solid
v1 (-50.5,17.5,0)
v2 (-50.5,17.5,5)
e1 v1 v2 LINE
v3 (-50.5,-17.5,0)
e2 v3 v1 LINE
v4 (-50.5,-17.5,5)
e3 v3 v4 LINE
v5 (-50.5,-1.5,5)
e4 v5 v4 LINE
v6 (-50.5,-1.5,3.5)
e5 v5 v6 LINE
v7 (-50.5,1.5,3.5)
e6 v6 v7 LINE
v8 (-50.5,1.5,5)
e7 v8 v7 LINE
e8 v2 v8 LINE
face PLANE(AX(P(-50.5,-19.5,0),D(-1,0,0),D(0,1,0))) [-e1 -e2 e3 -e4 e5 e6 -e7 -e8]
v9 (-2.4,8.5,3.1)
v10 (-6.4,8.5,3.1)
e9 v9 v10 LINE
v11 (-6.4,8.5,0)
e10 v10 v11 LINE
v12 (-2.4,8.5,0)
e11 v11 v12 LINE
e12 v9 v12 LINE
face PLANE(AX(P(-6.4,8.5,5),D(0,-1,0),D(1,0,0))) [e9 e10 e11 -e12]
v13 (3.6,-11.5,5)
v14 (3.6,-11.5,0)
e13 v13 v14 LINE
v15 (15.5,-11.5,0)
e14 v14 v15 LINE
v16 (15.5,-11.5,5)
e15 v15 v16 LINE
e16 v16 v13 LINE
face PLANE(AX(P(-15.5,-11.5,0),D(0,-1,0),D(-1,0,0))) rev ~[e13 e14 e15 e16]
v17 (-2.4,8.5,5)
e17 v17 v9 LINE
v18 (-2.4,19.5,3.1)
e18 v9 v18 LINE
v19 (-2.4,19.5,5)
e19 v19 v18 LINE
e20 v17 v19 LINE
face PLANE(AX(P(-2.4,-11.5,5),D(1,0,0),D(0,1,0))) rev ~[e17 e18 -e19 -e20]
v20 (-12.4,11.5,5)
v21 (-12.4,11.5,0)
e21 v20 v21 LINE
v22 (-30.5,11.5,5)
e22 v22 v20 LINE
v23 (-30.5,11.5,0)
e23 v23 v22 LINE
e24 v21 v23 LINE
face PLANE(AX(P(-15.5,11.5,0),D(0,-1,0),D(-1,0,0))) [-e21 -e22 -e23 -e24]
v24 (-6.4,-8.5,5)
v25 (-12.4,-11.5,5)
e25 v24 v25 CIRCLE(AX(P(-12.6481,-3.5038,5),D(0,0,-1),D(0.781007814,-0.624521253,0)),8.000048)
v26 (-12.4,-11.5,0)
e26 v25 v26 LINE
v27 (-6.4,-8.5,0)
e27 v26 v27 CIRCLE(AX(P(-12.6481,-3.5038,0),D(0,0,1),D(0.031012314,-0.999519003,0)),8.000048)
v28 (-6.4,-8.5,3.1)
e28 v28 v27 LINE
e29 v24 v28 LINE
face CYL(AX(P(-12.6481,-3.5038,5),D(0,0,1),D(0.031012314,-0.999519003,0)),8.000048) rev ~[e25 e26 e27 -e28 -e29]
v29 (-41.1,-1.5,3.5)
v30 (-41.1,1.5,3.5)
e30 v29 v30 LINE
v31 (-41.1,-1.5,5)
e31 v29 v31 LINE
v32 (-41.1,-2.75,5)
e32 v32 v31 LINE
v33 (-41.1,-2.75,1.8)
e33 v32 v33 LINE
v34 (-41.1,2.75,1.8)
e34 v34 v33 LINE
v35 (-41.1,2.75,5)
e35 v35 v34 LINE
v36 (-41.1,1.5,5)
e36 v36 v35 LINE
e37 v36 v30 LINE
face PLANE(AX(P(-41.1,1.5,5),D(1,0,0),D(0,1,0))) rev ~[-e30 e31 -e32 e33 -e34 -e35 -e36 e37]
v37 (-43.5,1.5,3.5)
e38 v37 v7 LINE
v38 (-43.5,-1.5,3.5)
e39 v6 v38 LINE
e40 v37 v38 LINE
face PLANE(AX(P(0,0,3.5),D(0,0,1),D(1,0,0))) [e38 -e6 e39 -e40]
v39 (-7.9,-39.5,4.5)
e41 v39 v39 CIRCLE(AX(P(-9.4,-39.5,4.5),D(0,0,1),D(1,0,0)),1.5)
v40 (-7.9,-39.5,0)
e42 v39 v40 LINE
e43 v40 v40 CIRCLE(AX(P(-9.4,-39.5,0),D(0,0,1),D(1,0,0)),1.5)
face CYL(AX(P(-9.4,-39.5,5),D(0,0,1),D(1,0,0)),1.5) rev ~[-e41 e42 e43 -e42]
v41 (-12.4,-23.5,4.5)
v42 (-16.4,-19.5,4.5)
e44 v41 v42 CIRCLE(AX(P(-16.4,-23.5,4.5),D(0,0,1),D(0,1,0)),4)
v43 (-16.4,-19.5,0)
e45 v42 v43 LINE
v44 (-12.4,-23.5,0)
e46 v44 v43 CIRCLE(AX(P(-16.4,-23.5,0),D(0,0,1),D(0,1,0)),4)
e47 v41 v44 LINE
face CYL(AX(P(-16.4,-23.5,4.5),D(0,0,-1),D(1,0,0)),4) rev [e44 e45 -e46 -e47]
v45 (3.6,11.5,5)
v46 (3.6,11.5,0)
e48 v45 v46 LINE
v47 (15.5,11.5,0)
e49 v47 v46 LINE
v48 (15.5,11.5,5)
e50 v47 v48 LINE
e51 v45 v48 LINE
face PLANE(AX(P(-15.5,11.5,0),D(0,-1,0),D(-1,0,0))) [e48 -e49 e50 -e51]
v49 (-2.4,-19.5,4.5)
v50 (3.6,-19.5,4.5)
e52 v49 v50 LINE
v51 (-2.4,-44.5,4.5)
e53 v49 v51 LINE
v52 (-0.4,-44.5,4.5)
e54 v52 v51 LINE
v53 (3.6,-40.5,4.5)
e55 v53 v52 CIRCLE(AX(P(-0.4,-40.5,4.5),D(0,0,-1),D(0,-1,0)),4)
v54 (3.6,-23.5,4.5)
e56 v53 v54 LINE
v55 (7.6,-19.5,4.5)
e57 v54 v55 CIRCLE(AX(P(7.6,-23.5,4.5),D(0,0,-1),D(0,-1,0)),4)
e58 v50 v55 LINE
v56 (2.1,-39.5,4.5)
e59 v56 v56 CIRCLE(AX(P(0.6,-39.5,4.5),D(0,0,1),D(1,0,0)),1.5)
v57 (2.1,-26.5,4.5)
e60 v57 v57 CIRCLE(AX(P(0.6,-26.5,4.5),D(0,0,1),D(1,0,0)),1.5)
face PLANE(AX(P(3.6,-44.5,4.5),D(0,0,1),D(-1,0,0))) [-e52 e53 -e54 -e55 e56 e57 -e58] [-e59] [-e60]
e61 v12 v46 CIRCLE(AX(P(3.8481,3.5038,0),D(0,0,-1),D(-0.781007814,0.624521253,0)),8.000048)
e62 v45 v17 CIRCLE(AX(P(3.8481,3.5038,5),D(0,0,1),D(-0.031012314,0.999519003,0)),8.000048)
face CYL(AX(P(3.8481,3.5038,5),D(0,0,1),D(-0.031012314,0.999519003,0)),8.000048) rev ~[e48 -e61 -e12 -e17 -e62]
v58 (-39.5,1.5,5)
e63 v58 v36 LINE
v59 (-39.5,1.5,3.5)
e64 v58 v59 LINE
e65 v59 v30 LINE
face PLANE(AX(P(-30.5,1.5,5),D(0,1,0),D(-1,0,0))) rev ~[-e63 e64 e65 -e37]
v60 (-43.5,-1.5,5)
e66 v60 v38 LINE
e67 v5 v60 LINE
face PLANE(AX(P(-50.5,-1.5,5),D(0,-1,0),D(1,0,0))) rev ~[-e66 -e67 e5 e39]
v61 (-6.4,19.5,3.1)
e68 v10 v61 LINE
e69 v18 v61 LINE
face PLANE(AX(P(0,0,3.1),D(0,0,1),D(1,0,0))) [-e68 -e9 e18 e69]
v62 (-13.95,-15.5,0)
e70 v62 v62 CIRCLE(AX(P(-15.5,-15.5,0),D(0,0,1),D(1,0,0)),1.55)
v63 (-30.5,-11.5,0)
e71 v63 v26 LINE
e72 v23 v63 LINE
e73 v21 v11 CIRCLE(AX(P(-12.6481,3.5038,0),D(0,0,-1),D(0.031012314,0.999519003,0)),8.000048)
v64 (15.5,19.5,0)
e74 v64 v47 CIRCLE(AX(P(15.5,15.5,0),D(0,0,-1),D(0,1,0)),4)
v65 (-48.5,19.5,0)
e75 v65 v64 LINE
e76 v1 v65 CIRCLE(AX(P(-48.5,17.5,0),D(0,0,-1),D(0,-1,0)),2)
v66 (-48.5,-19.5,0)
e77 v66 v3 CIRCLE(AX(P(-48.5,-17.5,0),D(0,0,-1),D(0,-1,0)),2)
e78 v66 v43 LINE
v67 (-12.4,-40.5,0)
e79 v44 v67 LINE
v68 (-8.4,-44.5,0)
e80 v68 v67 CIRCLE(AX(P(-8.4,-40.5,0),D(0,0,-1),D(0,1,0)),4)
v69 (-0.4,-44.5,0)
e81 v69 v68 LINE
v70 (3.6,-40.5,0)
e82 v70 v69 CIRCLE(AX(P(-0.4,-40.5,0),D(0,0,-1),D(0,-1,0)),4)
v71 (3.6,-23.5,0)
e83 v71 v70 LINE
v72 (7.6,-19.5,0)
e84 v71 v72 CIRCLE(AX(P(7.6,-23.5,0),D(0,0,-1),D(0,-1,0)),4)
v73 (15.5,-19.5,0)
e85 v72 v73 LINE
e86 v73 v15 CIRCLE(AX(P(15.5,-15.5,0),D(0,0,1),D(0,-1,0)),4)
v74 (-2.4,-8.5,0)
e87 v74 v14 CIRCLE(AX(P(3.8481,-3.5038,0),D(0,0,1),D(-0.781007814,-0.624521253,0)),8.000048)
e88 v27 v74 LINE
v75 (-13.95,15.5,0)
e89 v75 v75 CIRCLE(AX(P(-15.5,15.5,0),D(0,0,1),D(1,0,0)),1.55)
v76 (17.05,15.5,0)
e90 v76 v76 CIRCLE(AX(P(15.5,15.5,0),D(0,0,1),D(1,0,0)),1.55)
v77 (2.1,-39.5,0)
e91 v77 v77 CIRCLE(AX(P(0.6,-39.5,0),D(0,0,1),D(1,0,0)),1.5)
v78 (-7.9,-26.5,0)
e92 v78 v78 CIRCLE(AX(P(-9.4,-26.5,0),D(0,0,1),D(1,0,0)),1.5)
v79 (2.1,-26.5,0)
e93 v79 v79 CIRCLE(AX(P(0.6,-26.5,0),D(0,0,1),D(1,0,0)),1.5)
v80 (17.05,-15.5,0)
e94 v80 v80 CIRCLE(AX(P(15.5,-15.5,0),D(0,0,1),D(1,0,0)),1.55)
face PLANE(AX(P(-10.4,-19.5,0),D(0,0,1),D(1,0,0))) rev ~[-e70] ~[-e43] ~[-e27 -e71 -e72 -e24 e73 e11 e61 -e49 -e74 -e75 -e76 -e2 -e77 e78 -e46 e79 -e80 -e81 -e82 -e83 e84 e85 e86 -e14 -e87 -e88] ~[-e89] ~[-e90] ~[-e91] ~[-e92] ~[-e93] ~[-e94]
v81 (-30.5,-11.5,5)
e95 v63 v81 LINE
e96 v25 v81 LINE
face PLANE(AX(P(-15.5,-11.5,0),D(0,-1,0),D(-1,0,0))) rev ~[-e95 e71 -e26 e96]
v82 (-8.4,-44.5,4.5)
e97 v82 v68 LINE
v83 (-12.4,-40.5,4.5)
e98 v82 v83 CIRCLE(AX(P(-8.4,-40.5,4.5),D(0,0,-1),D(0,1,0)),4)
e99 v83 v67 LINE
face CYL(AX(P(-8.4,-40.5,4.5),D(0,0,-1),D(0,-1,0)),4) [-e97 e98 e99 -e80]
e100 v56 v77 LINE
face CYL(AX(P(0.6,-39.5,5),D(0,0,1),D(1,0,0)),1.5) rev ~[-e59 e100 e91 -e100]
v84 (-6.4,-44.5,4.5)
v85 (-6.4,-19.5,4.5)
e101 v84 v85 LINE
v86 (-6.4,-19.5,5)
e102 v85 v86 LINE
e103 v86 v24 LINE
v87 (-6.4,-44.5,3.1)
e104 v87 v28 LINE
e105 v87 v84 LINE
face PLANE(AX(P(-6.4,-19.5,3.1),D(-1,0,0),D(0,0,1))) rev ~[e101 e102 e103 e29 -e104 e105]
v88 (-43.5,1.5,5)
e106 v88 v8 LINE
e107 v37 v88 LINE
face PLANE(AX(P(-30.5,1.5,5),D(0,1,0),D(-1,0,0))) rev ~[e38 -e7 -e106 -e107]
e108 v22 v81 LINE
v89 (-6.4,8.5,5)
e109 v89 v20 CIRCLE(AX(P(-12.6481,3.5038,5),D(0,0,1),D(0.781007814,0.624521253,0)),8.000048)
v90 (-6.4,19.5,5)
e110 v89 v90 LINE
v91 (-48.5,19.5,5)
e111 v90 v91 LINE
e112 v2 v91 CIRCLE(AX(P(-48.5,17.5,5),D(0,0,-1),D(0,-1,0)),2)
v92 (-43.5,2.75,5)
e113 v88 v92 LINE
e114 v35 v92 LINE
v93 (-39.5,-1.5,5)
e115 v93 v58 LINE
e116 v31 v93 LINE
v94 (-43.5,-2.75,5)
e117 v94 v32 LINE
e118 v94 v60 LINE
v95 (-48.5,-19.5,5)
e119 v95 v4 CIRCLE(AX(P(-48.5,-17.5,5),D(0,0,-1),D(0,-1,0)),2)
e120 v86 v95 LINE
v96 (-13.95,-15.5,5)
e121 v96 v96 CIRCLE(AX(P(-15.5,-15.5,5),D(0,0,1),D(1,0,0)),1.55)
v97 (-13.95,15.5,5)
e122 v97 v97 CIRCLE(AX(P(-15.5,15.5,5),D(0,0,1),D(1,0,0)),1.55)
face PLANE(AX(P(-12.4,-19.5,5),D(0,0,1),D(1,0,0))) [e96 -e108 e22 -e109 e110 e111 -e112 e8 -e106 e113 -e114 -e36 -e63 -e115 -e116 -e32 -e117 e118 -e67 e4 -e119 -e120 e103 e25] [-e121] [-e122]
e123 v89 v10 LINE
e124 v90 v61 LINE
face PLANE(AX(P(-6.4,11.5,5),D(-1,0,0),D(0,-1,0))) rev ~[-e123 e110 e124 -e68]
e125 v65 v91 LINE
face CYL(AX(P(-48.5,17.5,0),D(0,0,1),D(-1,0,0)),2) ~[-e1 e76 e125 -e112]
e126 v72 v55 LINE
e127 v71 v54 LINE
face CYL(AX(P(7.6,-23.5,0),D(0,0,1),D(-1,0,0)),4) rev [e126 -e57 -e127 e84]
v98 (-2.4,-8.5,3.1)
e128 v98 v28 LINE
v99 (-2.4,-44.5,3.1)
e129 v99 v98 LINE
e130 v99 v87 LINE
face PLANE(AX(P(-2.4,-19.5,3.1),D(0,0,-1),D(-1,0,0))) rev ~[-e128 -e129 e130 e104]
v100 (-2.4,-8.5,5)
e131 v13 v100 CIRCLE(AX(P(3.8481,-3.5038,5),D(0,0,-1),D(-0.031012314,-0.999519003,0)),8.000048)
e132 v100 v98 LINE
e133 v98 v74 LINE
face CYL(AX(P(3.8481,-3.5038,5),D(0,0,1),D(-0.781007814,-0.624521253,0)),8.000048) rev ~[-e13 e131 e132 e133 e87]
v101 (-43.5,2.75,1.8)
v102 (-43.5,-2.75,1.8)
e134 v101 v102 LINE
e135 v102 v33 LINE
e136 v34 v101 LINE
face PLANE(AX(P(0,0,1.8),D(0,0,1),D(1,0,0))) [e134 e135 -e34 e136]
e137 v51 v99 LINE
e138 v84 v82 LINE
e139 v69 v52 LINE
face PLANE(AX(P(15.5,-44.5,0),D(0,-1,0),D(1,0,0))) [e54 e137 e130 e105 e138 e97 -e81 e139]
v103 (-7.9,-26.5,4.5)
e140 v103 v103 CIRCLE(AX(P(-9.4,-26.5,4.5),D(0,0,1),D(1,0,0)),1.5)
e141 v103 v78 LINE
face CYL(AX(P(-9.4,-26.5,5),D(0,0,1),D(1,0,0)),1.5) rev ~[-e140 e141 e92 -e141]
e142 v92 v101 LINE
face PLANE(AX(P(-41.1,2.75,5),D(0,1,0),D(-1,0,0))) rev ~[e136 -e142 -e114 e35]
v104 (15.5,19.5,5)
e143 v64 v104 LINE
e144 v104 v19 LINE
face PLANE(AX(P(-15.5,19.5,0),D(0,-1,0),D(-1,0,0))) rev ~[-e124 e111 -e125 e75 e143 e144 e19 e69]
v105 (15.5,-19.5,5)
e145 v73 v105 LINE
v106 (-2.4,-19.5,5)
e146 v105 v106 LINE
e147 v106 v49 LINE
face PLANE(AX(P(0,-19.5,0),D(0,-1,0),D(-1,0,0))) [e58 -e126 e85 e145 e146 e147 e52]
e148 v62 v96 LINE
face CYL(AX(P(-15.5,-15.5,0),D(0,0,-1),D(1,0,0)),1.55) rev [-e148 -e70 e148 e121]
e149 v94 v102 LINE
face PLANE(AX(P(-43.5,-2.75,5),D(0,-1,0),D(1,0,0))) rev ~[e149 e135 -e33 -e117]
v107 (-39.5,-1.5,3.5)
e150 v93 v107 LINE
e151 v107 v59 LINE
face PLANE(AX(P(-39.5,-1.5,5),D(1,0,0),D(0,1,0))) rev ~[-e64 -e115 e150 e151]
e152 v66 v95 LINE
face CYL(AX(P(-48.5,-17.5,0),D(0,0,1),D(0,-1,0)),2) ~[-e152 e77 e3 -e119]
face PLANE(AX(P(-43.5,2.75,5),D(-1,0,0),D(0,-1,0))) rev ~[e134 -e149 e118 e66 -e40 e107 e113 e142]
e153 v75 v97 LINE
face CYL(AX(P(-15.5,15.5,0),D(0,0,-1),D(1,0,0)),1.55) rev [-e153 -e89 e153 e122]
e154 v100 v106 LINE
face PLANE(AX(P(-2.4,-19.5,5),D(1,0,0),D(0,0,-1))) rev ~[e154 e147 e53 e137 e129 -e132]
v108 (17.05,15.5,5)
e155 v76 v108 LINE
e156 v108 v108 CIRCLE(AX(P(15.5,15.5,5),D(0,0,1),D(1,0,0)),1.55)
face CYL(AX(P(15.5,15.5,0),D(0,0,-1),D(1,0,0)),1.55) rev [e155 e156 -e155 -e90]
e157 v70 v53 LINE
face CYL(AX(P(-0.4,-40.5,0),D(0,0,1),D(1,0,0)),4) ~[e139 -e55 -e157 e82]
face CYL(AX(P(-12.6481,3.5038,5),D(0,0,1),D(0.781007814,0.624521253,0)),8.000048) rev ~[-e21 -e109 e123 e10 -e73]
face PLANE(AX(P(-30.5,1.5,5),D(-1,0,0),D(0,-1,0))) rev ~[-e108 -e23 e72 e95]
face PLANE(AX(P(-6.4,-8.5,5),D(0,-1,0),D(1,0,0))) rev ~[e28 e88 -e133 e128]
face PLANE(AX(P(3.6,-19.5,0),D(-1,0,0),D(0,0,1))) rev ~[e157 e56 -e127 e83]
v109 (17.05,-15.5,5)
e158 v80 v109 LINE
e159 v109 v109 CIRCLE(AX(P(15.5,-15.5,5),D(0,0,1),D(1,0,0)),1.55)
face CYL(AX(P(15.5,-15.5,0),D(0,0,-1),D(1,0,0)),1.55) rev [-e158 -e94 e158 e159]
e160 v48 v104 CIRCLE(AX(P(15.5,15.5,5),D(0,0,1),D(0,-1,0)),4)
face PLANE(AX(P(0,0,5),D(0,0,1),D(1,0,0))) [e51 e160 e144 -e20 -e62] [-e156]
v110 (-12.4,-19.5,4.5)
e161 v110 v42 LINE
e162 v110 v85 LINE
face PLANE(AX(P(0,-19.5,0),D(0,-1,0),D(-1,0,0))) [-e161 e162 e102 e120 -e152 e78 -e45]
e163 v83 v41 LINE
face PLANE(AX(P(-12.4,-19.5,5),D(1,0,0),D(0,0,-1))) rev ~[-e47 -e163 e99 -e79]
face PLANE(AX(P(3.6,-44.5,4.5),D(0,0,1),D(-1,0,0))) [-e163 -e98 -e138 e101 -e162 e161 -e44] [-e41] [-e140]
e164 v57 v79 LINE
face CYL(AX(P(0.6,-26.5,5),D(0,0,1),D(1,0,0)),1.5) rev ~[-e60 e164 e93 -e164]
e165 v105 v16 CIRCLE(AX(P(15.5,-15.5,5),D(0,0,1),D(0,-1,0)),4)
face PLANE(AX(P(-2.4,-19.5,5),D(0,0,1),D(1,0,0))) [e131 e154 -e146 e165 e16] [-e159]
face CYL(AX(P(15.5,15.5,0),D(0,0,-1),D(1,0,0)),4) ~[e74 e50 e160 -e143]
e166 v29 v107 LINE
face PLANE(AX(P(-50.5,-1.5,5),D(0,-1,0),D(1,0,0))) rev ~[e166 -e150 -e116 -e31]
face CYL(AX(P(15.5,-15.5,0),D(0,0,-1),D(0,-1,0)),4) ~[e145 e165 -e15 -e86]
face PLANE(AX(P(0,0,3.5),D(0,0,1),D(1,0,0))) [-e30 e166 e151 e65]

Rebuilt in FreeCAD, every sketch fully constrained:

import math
import FreeCAD as App
import Part
import Sketcher

V = App.Vector
Q = App.Units.Quantity


def edges_at(feature, points):
    """Names of the edges that pass closest to the given points."""
    edges = feature.Shape.Edges
    near = lambda p: min(range(len(edges)), key=lambda i: edges[i].distToShape(Part.Vertex(*p))[0])
    return sorted({f"Edge{near(p) + 1}" for p in points})


def add_polygon(sketch, points):
    """Adds a closed chain of lines whose ends are joined by coincident constraints."""
    first, n = sketch.GeometryCount, len(points)
    for a, b in zip(points, points[1:] + points[:1]):
        sketch.addGeometry(Part.LineSegment(App.Vector(*a, 0), App.Vector(*b, 0)), False)
    for i in range(n):
        sketch.addConstraint(Sketcher.Constraint("Coincident", first + i, 2, first + (i + 1) % n, 1))

doc = App.newDocument("Part")
params = doc.addObject("Spreadsheet::Sheet", "Params")
for row, (alias, value) in enumerate([
    ("sketch1_radius", "4 mm"),
    ("sketch1_diameter", "3.1 mm"),
    ("pad1_length", "5 mm"),
    ("sketch2_height", "3 mm"),
    ("sketch2_width", "20 mm"),
    ("pocket1_length", "1.5 mm"),
    ("sketch3_width", "2.4 mm"),
    ("sketch3_height", "5.5 mm"),
    ("pocket2_length", "3.2 mm"),
    ("sketch4_width", "4 mm"),
    ("sketch4_height", "39 mm"),
    ("pocket3_length", "1.9 mm"),
    ("fillet_radius", "2 mm"),
    ("fillet2_radius", "2 mm"),
    ("sketch5_radius", "8 mm"),
    ("sketch5_width", "4 mm"),
    ("pad2_length", "5 mm"),
    ("sketch6_width", "4 mm"),
    ("sketch6_height", "23 mm"),
    ("pocket4_length", "1.9 mm"),
    ("sketch7_width", "9 mm"),
    ("sketch7_height", "3 mm"),
    ("pad3_length", "1.5 mm"),
    ("sketch8_width", "6 mm"),
    ("sketch8_width2", "16 mm"),
    ("sketch8_height", "5 mm"),
    ("sketch8_height2", "1.9 mm"),
    ("pad4_length", "25 mm"),
    ("sketch9_diameter", "3 mm"),
    ("pocket5_length", "5 mm"),
    ("sketch10_height", "0.5 mm"),
    ("sketch10_width", "16 mm"),
    ("pocket6_length", "25 mm"),
    ("fillet3_radius", "4 mm"),
    ("fillet4_radius", "4 mm"),
], start=1):
    params.set(f"A{row}", alias)
    params.set(f"B{row}", "=" + value)
    params.setAlias(f"B{row}", alias)

body = doc.addObject("PartDesign::Body", "Body")

sketch1 = body.newObject("Sketcher::SketchObject", "Sketch")
sketch1.AttachmentSupport = (doc.getObject("XY_Plane"), [""])
sketch1.MapMode = "FlatFace"
sketch1.addGeometry(Part.ArcOfCircle(Part.Circle(V(15.5, -15.5, 0), V(0, 0, 1), 4), math.radians(-90), math.radians(90)), False)
sketch1.addGeometry(Part.LineSegment(V(15.5, -11.5, 0), V(-30.5, -11.5, 0)), False)
sketch1.addGeometry(Part.LineSegment(V(-30.5, -11.5, 0), V(-30.5, 11.5, 0)), False)
sketch1.addGeometry(Part.LineSegment(V(-30.5, 11.5, 0), V(15.5, 11.5, 0)), False)
sketch1.addGeometry(Part.ArcOfCircle(Part.Circle(V(15.5, 15.5, 0), V(0, 0, 1), 4), math.radians(-90), math.radians(90)), False)
sketch1.addGeometry(Part.LineSegment(V(15.5, 19.5, 0), V(-50.5, 19.5, 0)), False)
sketch1.addGeometry(Part.LineSegment(V(-50.5, 19.5, 0), V(-50.5, -19.5, 0)), False)
sketch1.addGeometry(Part.LineSegment(V(-50.5, -19.5, 0), V(15.5, -19.5, 0)), False)
sketch1.addGeometry(Part.Circle(V(-15.5, -15.5, 0), V(0, 0, 1), 1.6), False)
sketch1.addGeometry(Part.Circle(V(15.5, -15.5, 0), V(0, 0, 1), 1.6), False)
sketch1.addGeometry(Part.Circle(V(-15.5, 15.5, 0), V(0, 0, 1), 1.6), False)
sketch1.addGeometry(Part.Circle(V(15.5, 15.5, 0), V(0, 0, 1), 1.6), False)
sketch1.addConstraint(Sketcher.Constraint("Tangent", 0, 2, 1, 1))
sketch1.addConstraint(Sketcher.Constraint("Coincident", 1, 2, 2, 1))
sketch1.addConstraint(Sketcher.Constraint("Coincident", 2, 2, 3, 1))
sketch1.addConstraint(Sketcher.Constraint("Tangent", 3, 2, 4, 1))
sketch1.addConstraint(Sketcher.Constraint("Tangent", 4, 2, 5, 1))
sketch1.addConstraint(Sketcher.Constraint("Coincident", 5, 2, 6, 1))
sketch1.addConstraint(Sketcher.Constraint("Coincident", 6, 2, 7, 1))
sketch1.addConstraint(Sketcher.Constraint("Tangent", 7, 2, 0, 1))
sketch1.addConstraint(Sketcher.Constraint("Horizontal", 1))
sketch1.addConstraint(Sketcher.Constraint("Vertical", 2))
sketch1.addConstraint(Sketcher.Constraint("Horizontal", 3))
sketch1.addConstraint(Sketcher.Constraint("Horizontal", 5))
sketch1.addConstraint(Sketcher.Constraint("Vertical", 6))
sketch1.addConstraint(Sketcher.Constraint("Horizontal", 7))
sketch1.addConstraint(Sketcher.Constraint("Coincident", 9, 3, 0, 3))
sketch1.addConstraint(Sketcher.Constraint("Coincident", 11, 3, 4, 3))
sketch1.addConstraint(Sketcher.Constraint("Equal", 0, 4))
sketch1.addConstraint(Sketcher.Constraint("Equal", 8, 9))
sketch1.addConstraint(Sketcher.Constraint("Equal", 9, 10))
sketch1.addConstraint(Sketcher.Constraint("Equal", 10, 11))
sketch1.addConstraint(Sketcher.Constraint("Symmetric", 4, 3, 8, 3, -1, 1))
sketch1.addConstraint(Sketcher.Constraint("Symmetric", 0, 3, 10, 3, -1, 1))
sketch1.addConstraint(Sketcher.Constraint("Symmetric", 0, 3, 8, 3, -2))
sketch1.addConstraint(Sketcher.Constraint("Radius", 0, Q("4 mm")))
sketch1.addConstraint(Sketcher.Constraint("Diameter", 8, Q("3.1 mm")))
sketch1.addConstraint(Sketcher.Constraint("DistanceX", 1, 2, 8, 3, Q("15 mm")))
sketch1.addConstraint(Sketcher.Constraint("DistanceX", 5, 2, 10, 3, Q("35 mm")))
sketch1.addConstraint(Sketcher.Constraint("DistanceY", 8, 3, 5, 2, Q("35 mm")))
sketch1.addConstraint(Sketcher.Constraint("DistanceX", -1, 1, 0, 3, Q("15.5 mm")))
sketch1.setExpression("Constraints[23]", "Params.sketch1_radius")
sketch1.setExpression("Constraints[24]", "Params.sketch1_diameter")
pad1 = body.newObject("PartDesign::Pad", "Pad")
pad1.Profile = sketch1
pad1.setExpression("Length", "Params.pad1_length")

sketch2 = body.newObject("Sketcher::SketchObject", "Sketch001")
sketch2.AttachmentSupport = (doc.getObject("XY_Plane"), [""])
sketch2.MapMode = "FlatFace"
sketch2.AttachmentOffset = App.Placement(V(0, 0, 5), App.Rotation())
add_polygon(sketch2, [(-30.5, 1.5), (-50.5, 1.5), (-50.5, -1.5), (-30.5, -1.5)])
sketch2.addConstraint(Sketcher.Constraint("Horizontal", 0))
sketch2.addConstraint(Sketcher.Constraint("Vertical", 1))
sketch2.addConstraint(Sketcher.Constraint("Horizontal", 2))
sketch2.addConstraint(Sketcher.Constraint("Vertical", 3))
sketch2.addConstraint(Sketcher.Constraint("DistanceY", 1, 2, 1, 1, Q("3 mm")))
sketch2.addConstraint(Sketcher.Constraint("DistanceX", 0, 2, 0, 1, Q("20 mm")))
sketch2.addConstraint(Sketcher.Constraint("DistanceX", 0, 2, -1, 1, Q("50.5 mm")))
sketch2.addConstraint(Sketcher.Constraint("DistanceY", -1, 1, 0, 2, Q("1.5 mm")))
sketch2.setExpression("Constraints[8]", "Params.sketch2_height")
sketch2.setExpression("Constraints[9]", "Params.sketch2_width")
pocket1 = body.newObject("PartDesign::Pocket", "Pocket")
pocket1.Profile = sketch2
pocket1.setExpression("Length", "Params.pocket1_length")

sketch3 = body.newObject("Sketcher::SketchObject", "Sketch002")
sketch3.AttachmentSupport = (doc.getObject("XY_Plane"), [""])
sketch3.MapMode = "FlatFace"
sketch3.AttachmentOffset = App.Placement(V(0, 0, 5), App.Rotation())
add_polygon(sketch3, [(-43.5, 2.8), (-43.5, -2.8), (-41.1, -2.8), (-41.1, 2.8)])
sketch3.addConstraint(Sketcher.Constraint("Vertical", 0))
sketch3.addConstraint(Sketcher.Constraint("Horizontal", 1))
sketch3.addConstraint(Sketcher.Constraint("Vertical", 2))
sketch3.addConstraint(Sketcher.Constraint("Horizontal", 3))
sketch3.addConstraint(Sketcher.Constraint("DistanceX", 1, 1, 1, 2, Q("2.4 mm")))
sketch3.addConstraint(Sketcher.Constraint("DistanceY", 0, 2, 0, 1, Q("5.5 mm")))
sketch3.addConstraint(Sketcher.Constraint("DistanceX", 0, 2, -1, 1, Q("43.5 mm")))
sketch3.addConstraint(Sketcher.Constraint("DistanceY", 0, 2, -1, 1, Q("2.75 mm")))
sketch3.setExpression("Constraints[8]", "Params.sketch3_width")
sketch3.setExpression("Constraints[9]", "Params.sketch3_height")
pocket2 = body.newObject("PartDesign::Pocket", "Pocket001")
pocket2.Profile = sketch3
pocket2.setExpression("Length", "Params.pocket2_length")

sketch4 = body.newObject("Sketcher::SketchObject", "Sketch003")
sketch4.AttachmentSupport = (doc.getObject("XY_Plane"), [""])
sketch4.MapMode = "FlatFace"
sketch4.AttachmentOffset = App.Placement(V(0, 0, 5), App.Rotation())
add_polygon(sketch4, [(-2.4, 19.5), (-6.4, 19.5), (-6.4, -19.5), (-2.4, -19.5)])
sketch4.addConstraint(Sketcher.Constraint("Horizontal", 0))
sketch4.addConstraint(Sketcher.Constraint("Vertical", 1))
sketch4.addConstraint(Sketcher.Constraint("Horizontal", 2))
sketch4.addConstraint(Sketcher.Constraint("Vertical", 3))
sketch4.addConstraint(Sketcher.Constraint("DistanceX", 0, 2, 0, 1, Q("4 mm")))
sketch4.addConstraint(Sketcher.Constraint("DistanceX", 2, 2, -1, 1, Q("2.4 mm")))
sketch4.addConstraint(Sketcher.Constraint("DistanceY", 1, 2, 1, 1, Q("39 mm")))
sketch4.addConstraint(Sketcher.Constraint("DistanceY", -1, 1, 0, 2, Q("19.5 mm")))
sketch4.setExpression("Constraints[8]", "Params.sketch4_width")
sketch4.setExpression("Constraints[10]", "Params.sketch4_height")
pocket3 = body.newObject("PartDesign::Pocket", "Pocket002")
pocket3.Profile = sketch4
pocket3.setExpression("Length", "Params.pocket3_length")
doc.recompute()

fillet = body.newObject("PartDesign::Fillet", "Fillet")
fillet.Base = (pocket3, edges_at(pocket3, [(-50.5, -19.5, 2.5)]))
fillet.setExpression("Radius", "Params.fillet_radius")
doc.recompute()

fillet2 = body.newObject("PartDesign::Fillet", "Fillet001")
fillet2.Base = (fillet, edges_at(fillet, [(-50.5, 19.5, 2.5)]))
fillet2.setExpression("Radius", "Params.fillet2_radius")

sketch5 = body.newObject("Sketcher::SketchObject", "Sketch004")
sketch5.AttachmentSupport = (doc.getObject("XY_Plane"), [""])
sketch5.MapMode = "FlatFace"
sketch5.AttachmentOffset = App.Placement(V(0, 0, 5), App.Rotation())
sketch5.addGeometry(Part.LineSegment(V(-6.4, 8.5, 0), V(-2.4, 8.5, 0)), False)
sketch5.addGeometry(Part.ArcOfCircle(Part.Circle(V(3.8, 3.5, 0), V(0, 0, 1), 8), math.radians(92), math.radians(141)), False)
sketch5.addGeometry(Part.LineSegment(V(3.6, 11.5, 0), V(-12.4, 11.5, 0)), False)
sketch5.addGeometry(Part.ArcOfCircle(Part.Circle(V(-12.6, 3.5, 0), V(0, 0, 1), 8), math.radians(39), math.radians(88)), False)
sketch5.addGeometry(Part.ArcOfCircle(Part.Circle(V(3.8, -3.5, 0), V(0, 0, 1), 8), math.radians(-141), math.radians(-92)), False)
sketch5.addGeometry(Part.LineSegment(V(-2.4, -8.5, 0), V(-6.4, -8.5, 0)), False)
sketch5.addGeometry(Part.ArcOfCircle(Part.Circle(V(-12.6, -3.5, 0), V(0, 0, 1), 8), math.radians(-88), math.radians(-39)), False)
sketch5.addGeometry(Part.LineSegment(V(-12.4, -11.5, 0), V(3.6, -11.5, 0)), False)
sketch5.addConstraint(Sketcher.Constraint("Coincident", 0, 2, 1, 2))
sketch5.addConstraint(Sketcher.Constraint("Coincident", 1, 1, 2, 1))
sketch5.addConstraint(Sketcher.Constraint("Coincident", 2, 2, 3, 2))
sketch5.addConstraint(Sketcher.Constraint("Coincident", 3, 1, 0, 1))
sketch5.addConstraint(Sketcher.Constraint("Coincident", 4, 1, 5, 1))
sketch5.addConstraint(Sketcher.Constraint("Coincident", 5, 2, 6, 2))
sketch5.addConstraint(Sketcher.Constraint("Coincident", 6, 1, 7, 1))
sketch5.addConstraint(Sketcher.Constraint("Coincident", 7, 2, 4, 2))
sketch5.addConstraint(Sketcher.Constraint("Horizontal", 0))
sketch5.addConstraint(Sketcher.Constraint("Horizontal", 2))
sketch5.addConstraint(Sketcher.Constraint("Horizontal", 5))
sketch5.addConstraint(Sketcher.Constraint("Horizontal", 7))
sketch5.addConstraint(Sketcher.Constraint("Equal", 1, 3))
sketch5.addConstraint(Sketcher.Constraint("Equal", 3, 4))
sketch5.addConstraint(Sketcher.Constraint("Equal", 4, 6))
sketch5.addConstraint(Sketcher.Constraint("Symmetric", 1, 3, 4, 3, -1))
sketch5.addConstraint(Sketcher.Constraint("Symmetric", 3, 3, 6, 3, -1))
sketch5.addConstraint(Sketcher.Constraint("Horizontal", 1, 3, 3, 3))
sketch5.addConstraint(Sketcher.Constraint("Vertical", 0, 2, 4, 1))
sketch5.addConstraint(Sketcher.Constraint("Vertical", 2, 2, 6, 1))
sketch5.addConstraint(Sketcher.Constraint("Radius", 1, Q("8 mm")))
sketch5.addConstraint(Sketcher.Constraint("DistanceX", 0, 1, 0, 2, Q("4 mm")))
sketch5.addConstraint(Sketcher.Constraint("DistanceX", 0, 2, 1, 1, Q("6 mm")))
sketch5.addConstraint(Sketcher.Constraint("DistanceY", 0, 2, 1, 1, Q("3 mm")))
sketch5.addConstraint(Sketcher.Constraint("DistanceY", 4, 1, 0, 2, Q("17 mm")))
sketch5.addConstraint(Sketcher.Constraint("DistanceX", 0, 2, -1, 1, Q("2.4 mm")))
sketch5.setExpression("Constraints[20]", "Params.sketch5_radius")
sketch5.setExpression("Constraints[21]", "Params.sketch5_width")
pad2 = body.newObject("PartDesign::Pad", "Pad001")
pad2.Profile = sketch5
pad2.setExpression("Length", "Params.pad2_length")
pad2.Reversed = True

sketch6 = body.newObject("Sketcher::SketchObject", "Sketch005")
sketch6.AttachmentSupport = (doc.getObject("XY_Plane"), [""])
sketch6.MapMode = "FlatFace"
sketch6.AttachmentOffset = App.Placement(V(0, 0, 5), App.Rotation())
add_polygon(sketch6, [(-2.4, -11.5), (-2.4, 11.5), (-6.4, 11.5), (-6.4, -11.5)])
sketch6.addConstraint(Sketcher.Constraint("Vertical", 0))
sketch6.addConstraint(Sketcher.Constraint("Horizontal", 1))
sketch6.addConstraint(Sketcher.Constraint("Vertical", 2))
sketch6.addConstraint(Sketcher.Constraint("Horizontal", 3))
sketch6.addConstraint(Sketcher.Constraint("DistanceX", 1, 2, 1, 1, Q("4 mm")))
sketch6.addConstraint(Sketcher.Constraint("DistanceY", 0, 1, 0, 2, Q("23 mm")))
sketch6.addConstraint(Sketcher.Constraint("DistanceX", 0, 2, -1, 1, Q("2.4 mm")))
sketch6.addConstraint(Sketcher.Constraint("DistanceY", -1, 1, 0, 2, Q("11.5 mm")))
sketch6.setExpression("Constraints[8]", "Params.sketch6_width")
sketch6.setExpression("Constraints[9]", "Params.sketch6_height")
pocket4 = body.newObject("PartDesign::Pocket", "Pocket003")
pocket4.Profile = sketch6
pocket4.setExpression("Length", "Params.pocket4_length")

sketch7 = body.newObject("Sketcher::SketchObject", "Sketch006")
sketch7.AttachmentSupport = (doc.getObject("XY_Plane"), [""])
sketch7.MapMode = "FlatFace"
sketch7.AttachmentOffset = App.Placement(V(0, 0, 5), App.Rotation())
add_polygon(sketch7, [(-30.5, 1.5), (-39.5, 1.5), (-39.5, -1.5), (-30.5, -1.5)])
sketch7.addConstraint(Sketcher.Constraint("Horizontal", 0))
sketch7.addConstraint(Sketcher.Constraint("Vertical", 1))
sketch7.addConstraint(Sketcher.Constraint("Horizontal", 2))
sketch7.addConstraint(Sketcher.Constraint("Vertical", 3))
sketch7.addConstraint(Sketcher.Constraint("DistanceX", 0, 2, 0, 1, Q("9 mm")))
sketch7.addConstraint(Sketcher.Constraint("DistanceY", 1, 2, 1, 1, Q("3 mm")))
sketch7.addConstraint(Sketcher.Constraint("DistanceX", 0, 2, -1, 1, Q("39.5 mm")))
sketch7.addConstraint(Sketcher.Constraint("DistanceY", -1, 1, 0, 2, Q("1.5 mm")))
sketch7.setExpression("Constraints[8]", "Params.sketch7_width")
sketch7.setExpression("Constraints[9]", "Params.sketch7_height")
pad3 = body.newObject("PartDesign::Pad", "Pad002")
pad3.Profile = sketch7
pad3.setExpression("Length", "Params.pad3_length")
pad3.Reversed = True

sketch8 = body.newObject("Sketcher::SketchObject", "Sketch007")
sketch8.AttachmentSupport = (doc.getObject("XZ_Plane"), [""])
sketch8.MapMode = "FlatFace"
sketch8.AttachmentOffset = App.Placement(V(0, 0, 19.5), App.Rotation())
add_polygon(sketch8, [(-12.4, 0), (3.6, 0), (3.6, 5), (-2.4, 5), (-2.4, 3.1), (-6.4, 3.1), (-6.4, 5), (-12.4, 5)])
sketch8.addConstraint(Sketcher.Constraint("Horizontal", 0))
sketch8.addConstraint(Sketcher.Constraint("Vertical", 1))
sketch8.addConstraint(Sketcher.Constraint("Horizontal", 2))
sketch8.addConstraint(Sketcher.Constraint("Vertical", 3))
sketch8.addConstraint(Sketcher.Constraint("Horizontal", 4))
sketch8.addConstraint(Sketcher.Constraint("Vertical", 5))
sketch8.addConstraint(Sketcher.Constraint("Horizontal", 6))
sketch8.addConstraint(Sketcher.Constraint("Vertical", 7))
sketch8.addConstraint(Sketcher.Constraint("PointOnObject", 0, 2, -1))
sketch8.addConstraint(Sketcher.Constraint("Horizontal", 2, 2, 5, 2))
sketch8.addConstraint(Sketcher.Constraint("Equal", 2, 6))
sketch8.addConstraint(Sketcher.Constraint("DistanceX", 2, 2, 2, 1, Q("6 mm")))
sketch8.addConstraint(Sketcher.Constraint("DistanceX", 0, 1, 0, 2, Q("16 mm")))
sketch8.addConstraint(Sketcher.Constraint("DistanceY", 1, 1, 1, 2, Q("5 mm")))
sketch8.addConstraint(Sketcher.Constraint("DistanceY", 3, 2, 3, 1, Q("1.9 mm")))
sketch8.addConstraint(Sketcher.Constraint("DistanceX", -1, 1, 0, 2, Q("3.6 mm")))
sketch8.setExpression("Constraints[19]", "Params.sketch8_width")
sketch8.setExpression("Constraints[20]", "Params.sketch8_width2")
sketch8.setExpression("Constraints[21]", "Params.sketch8_height")
sketch8.setExpression("Constraints[22]", "Params.sketch8_height2")
pad4 = body.newObject("PartDesign::Pad", "Pad003")
pad4.Profile = sketch8
pad4.setExpression("Length", "Params.pad4_length")

sketch9 = body.newObject("Sketcher::SketchObject", "Sketch008")
sketch9.AttachmentSupport = (doc.getObject("XY_Plane"), [""])
sketch9.MapMode = "FlatFace"
sketch9.AttachmentOffset = App.Placement(V(0, 0, 5), App.Rotation())
sketch9.addGeometry(Part.Circle(V(0.6, -26.5, 0), V(0, 0, 1), 1.5), False)
sketch9.addGeometry(Part.Circle(V(-9.4, -26.5, 0), V(0, 0, 1), 1.5), False)
sketch9.addGeometry(Part.Circle(V(0.6, -39.5, 0), V(0, 0, 1), 1.5), False)
sketch9.addGeometry(Part.Circle(V(-9.4, -39.5, 0), V(0, 0, 1), 1.5), False)
sketch9.addConstraint(Sketcher.Constraint("Equal", 0, 1))
sketch9.addConstraint(Sketcher.Constraint("Equal", 1, 2))
sketch9.addConstraint(Sketcher.Constraint("Equal", 2, 3))
sketch9.addConstraint(Sketcher.Constraint("Horizontal", 0, 3, 1, 3))
sketch9.addConstraint(Sketcher.Constraint("Horizontal", 2, 3, 3, 3))
sketch9.addConstraint(Sketcher.Constraint("Vertical", 0, 3, 2, 3))
sketch9.addConstraint(Sketcher.Constraint("Vertical", 1, 3, 3, 3))
sketch9.addConstraint(Sketcher.Constraint("Diameter", 0, Q("3 mm")))
sketch9.addConstraint(Sketcher.Constraint("DistanceX", 1, 3, 0, 3, Q("10 mm")))
sketch9.addConstraint(Sketcher.Constraint("DistanceY", 2, 3, 0, 3, Q("13 mm")))
sketch9.addConstraint(Sketcher.Constraint("DistanceX", -1, 1, 0, 3, Q("0.6 mm")))
sketch9.addConstraint(Sketcher.Constraint("DistanceY", 0, 3, -1, 1, Q("26.5 mm")))
sketch9.setExpression("Constraints[7]", "Params.sketch9_diameter")
pocket5 = body.newObject("PartDesign::Pocket", "Pocket004")
pocket5.Profile = sketch9
pocket5.setExpression("Length", "Params.pocket5_length")

sketch10 = body.newObject("Sketcher::SketchObject", "Sketch009")
sketch10.AttachmentSupport = (doc.getObject("XZ_Plane"), [""])
sketch10.MapMode = "FlatFace"
sketch10.AttachmentOffset = App.Placement(V(0, 0, 44.5), App.Rotation())
add_polygon(sketch10, [(3.6, 4.5), (3.6, 5), (-12.4, 5), (-12.4, 4.5)])
sketch10.addConstraint(Sketcher.Constraint("Vertical", 0))
sketch10.addConstraint(Sketcher.Constraint("Horizontal", 1))
sketch10.addConstraint(Sketcher.Constraint("Vertical", 2))
sketch10.addConstraint(Sketcher.Constraint("Horizontal", 3))
sketch10.addConstraint(Sketcher.Constraint("DistanceY", 0, 1, 0, 2, Q("0.5 mm")))
sketch10.addConstraint(Sketcher.Constraint("DistanceX", 1, 2, 1, 1, Q("16 mm")))
sketch10.addConstraint(Sketcher.Constraint("DistanceY", -1, 1, 0, 2, Q("5 mm")))
sketch10.addConstraint(Sketcher.Constraint("DistanceX", -1, 1, 0, 2, Q("3.6 mm")))
sketch10.setExpression("Constraints[8]", "Params.sketch10_height")
sketch10.setExpression("Constraints[9]", "Params.sketch10_width")
pocket6 = body.newObject("PartDesign::Pocket", "Pocket005")
pocket6.Profile = sketch10
pocket6.setExpression("Length", "Params.pocket6_length")
doc.recompute()

fillet3 = body.newObject("PartDesign::Fillet", "Fillet002")
fillet3.Base = (pocket6, edges_at(pocket6, [(3.6, -19.5, 2.25)]))
fillet3.setExpression("Radius", "Params.fillet3_radius")
doc.recompute()

fillet4 = body.newObject("PartDesign::Fillet", "Fillet003")
fillet4.Base = (fillet3, edges_at(fillet3, [(-12.4, -19.5, 2.25), (-12.4, -44.5, 2.25), (3.6, -44.5, 2.25)]))
fillet4.setExpression("Radius", "Params.fillet4_radius")

doc.recompute()
